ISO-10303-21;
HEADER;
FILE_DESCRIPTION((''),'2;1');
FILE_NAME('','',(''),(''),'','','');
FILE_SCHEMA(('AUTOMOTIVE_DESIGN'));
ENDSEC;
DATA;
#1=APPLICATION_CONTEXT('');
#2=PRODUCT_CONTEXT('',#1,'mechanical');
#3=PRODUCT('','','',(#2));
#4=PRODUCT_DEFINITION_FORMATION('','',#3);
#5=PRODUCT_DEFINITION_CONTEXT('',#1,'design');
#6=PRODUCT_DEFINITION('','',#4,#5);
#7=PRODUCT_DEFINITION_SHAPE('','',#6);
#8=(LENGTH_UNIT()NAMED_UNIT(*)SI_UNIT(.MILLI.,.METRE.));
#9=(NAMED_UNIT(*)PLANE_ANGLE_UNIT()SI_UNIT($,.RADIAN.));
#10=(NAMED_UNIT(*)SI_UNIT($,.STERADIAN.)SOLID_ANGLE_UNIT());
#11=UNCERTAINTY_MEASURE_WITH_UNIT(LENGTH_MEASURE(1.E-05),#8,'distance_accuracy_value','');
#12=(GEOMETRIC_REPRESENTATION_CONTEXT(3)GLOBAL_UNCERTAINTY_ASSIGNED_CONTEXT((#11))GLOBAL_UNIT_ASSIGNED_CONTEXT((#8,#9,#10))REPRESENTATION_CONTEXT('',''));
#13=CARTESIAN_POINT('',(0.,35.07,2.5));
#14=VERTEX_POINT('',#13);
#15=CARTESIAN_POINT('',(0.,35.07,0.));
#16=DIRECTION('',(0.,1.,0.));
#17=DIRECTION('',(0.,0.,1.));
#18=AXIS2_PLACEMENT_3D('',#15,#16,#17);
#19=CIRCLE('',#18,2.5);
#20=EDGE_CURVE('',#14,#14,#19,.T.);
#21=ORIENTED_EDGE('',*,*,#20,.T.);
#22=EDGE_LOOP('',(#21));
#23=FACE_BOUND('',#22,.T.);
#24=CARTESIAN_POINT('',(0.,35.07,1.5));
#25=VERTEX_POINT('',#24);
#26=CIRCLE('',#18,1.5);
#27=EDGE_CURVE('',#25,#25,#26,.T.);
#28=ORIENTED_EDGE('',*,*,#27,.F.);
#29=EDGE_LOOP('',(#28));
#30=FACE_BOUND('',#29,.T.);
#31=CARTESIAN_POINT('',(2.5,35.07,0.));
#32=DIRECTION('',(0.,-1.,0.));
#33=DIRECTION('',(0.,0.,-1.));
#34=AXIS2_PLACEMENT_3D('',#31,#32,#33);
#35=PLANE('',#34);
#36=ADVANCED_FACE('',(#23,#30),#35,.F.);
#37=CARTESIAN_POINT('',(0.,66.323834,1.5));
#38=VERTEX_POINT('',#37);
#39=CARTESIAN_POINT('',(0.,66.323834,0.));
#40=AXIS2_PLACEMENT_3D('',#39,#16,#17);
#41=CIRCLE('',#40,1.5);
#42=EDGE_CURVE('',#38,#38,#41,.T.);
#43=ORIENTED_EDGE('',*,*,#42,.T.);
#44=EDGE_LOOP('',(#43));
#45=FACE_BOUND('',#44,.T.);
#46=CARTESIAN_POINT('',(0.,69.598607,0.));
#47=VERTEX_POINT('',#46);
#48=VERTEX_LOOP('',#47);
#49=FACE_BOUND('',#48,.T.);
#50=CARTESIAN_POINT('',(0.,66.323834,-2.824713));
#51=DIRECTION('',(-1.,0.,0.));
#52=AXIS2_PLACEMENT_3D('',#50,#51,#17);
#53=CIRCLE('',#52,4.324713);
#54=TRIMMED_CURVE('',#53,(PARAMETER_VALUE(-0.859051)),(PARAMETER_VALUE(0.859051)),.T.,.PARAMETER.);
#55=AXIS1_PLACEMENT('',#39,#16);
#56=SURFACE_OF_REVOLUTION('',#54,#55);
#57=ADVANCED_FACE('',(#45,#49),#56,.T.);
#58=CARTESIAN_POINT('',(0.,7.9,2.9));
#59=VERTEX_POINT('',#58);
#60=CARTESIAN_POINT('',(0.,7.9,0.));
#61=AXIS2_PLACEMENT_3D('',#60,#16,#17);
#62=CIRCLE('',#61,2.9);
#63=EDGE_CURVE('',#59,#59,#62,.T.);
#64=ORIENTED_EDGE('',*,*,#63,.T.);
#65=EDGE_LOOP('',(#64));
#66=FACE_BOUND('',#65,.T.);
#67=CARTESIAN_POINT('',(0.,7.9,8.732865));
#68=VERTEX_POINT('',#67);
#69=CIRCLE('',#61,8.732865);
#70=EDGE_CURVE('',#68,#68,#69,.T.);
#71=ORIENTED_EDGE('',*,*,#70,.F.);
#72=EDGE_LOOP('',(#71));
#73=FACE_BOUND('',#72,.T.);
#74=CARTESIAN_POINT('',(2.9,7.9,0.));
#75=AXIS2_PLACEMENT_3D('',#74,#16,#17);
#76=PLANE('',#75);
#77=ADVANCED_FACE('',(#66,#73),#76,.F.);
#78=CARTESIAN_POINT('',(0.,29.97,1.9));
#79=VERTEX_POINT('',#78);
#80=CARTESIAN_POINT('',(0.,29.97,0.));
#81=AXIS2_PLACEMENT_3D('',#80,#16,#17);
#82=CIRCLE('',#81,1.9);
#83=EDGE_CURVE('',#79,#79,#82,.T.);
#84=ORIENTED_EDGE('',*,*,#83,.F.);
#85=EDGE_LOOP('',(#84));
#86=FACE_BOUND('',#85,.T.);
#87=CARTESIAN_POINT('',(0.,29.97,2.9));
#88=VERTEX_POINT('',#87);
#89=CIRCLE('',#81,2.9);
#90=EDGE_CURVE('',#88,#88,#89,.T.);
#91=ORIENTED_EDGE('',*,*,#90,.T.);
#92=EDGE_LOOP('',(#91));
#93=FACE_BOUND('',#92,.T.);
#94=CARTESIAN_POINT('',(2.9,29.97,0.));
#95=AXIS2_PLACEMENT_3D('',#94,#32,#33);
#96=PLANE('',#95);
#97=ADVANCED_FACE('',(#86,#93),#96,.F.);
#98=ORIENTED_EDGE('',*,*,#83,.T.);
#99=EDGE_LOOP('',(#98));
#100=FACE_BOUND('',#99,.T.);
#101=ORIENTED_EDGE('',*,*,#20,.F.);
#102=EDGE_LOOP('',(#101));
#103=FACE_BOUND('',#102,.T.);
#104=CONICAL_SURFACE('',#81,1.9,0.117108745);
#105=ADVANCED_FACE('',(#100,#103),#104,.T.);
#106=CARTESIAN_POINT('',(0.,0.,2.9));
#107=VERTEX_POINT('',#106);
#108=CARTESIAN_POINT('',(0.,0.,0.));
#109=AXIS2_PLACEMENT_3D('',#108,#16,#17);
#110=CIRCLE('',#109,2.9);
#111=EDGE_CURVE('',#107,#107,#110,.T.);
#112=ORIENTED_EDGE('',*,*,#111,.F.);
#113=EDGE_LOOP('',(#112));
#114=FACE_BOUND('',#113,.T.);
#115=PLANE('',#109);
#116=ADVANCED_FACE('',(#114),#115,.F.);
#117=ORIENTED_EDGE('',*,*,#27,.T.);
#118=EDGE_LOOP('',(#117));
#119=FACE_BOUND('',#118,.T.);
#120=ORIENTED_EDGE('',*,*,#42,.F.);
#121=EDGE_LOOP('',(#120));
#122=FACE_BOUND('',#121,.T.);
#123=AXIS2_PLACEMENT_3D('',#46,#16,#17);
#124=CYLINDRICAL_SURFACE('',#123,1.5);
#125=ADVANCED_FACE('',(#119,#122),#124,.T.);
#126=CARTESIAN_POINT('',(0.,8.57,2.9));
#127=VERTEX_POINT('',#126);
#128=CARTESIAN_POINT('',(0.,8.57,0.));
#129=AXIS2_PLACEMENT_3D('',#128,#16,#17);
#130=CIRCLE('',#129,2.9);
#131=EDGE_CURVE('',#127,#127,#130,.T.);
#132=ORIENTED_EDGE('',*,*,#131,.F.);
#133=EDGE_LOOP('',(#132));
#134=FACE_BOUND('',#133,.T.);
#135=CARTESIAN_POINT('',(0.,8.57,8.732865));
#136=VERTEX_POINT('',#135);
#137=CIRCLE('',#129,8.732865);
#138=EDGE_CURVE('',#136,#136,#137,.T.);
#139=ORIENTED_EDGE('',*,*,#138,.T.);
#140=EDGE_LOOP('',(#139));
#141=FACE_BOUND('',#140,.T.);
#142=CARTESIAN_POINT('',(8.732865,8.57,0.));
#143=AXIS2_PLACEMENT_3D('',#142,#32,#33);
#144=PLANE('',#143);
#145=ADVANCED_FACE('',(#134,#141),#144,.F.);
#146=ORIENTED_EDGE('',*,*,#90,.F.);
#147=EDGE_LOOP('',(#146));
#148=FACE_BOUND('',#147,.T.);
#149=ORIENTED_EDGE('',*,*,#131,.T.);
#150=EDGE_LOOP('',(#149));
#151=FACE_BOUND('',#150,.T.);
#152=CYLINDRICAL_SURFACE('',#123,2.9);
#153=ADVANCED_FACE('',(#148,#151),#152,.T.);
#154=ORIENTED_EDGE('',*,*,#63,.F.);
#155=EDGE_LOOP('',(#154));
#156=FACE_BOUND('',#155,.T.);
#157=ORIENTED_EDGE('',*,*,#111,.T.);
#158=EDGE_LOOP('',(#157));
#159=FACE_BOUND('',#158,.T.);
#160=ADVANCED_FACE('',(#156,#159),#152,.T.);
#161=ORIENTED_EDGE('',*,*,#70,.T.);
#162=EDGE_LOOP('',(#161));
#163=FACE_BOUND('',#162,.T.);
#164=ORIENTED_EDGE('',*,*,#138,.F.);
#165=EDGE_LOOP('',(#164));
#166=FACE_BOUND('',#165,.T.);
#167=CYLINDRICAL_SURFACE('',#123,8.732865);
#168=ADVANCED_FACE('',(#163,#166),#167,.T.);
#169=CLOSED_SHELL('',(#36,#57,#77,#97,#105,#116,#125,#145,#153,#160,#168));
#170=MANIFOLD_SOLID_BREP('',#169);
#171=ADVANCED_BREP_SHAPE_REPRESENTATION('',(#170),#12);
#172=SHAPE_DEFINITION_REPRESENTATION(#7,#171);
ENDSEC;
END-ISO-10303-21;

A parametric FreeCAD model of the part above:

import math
import FreeCAD as App
import Part
import Sketcher

doc = App.newDocument("Part")
body = doc.addObject("PartDesign::Body", "Body")

# Sketch on XY plane
sketch1 = doc.addObject("Sketcher::SketchObject", "Sketch")
body.addObject(sketch1)
sketch1.AttachmentSupport = (doc.XY_Plane, [""])
sketch1.MapMode = "FlatFace"
sketch1.addGeometry([
    Part.LineSegment(App.Vector(0, 0, 0), App.Vector(2.9, 0, 0)),  # 0
    Part.LineSegment(App.Vector(2.9, 0, 0), App.Vector(2.9, 7.9, 0)),  # 1
    Part.LineSegment(App.Vector(2.9, 7.9, 0), App.Vector(8.732865, 7.9, 0)),  # 2
    Part.LineSegment(App.Vector(8.732865, 7.9, 0), App.Vector(8.732865, 8.57, 0)),  # 3
    Part.LineSegment(App.Vector(8.732865, 8.57, 0), App.Vector(2.9, 8.57, 0)),  # 4
    Part.LineSegment(App.Vector(2.9, 8.57, 0), App.Vector(2.9, 29.97, 0)),  # 5
    Part.LineSegment(App.Vector(2.9, 29.97, 0), App.Vector(1.9, 29.97, 0)),  # 6
    Part.LineSegment(App.Vector(1.9, 29.97, 0), App.Vector(2.5, 35.07, 0)),  # 7
    Part.LineSegment(App.Vector(2.5, 35.07, 0), App.Vector(1.5, 35.07, 0)),  # 8
    Part.LineSegment(App.Vector(1.5, 35.07, 0), App.Vector(1.5, 66.323834, 0)),  # 9
    Part.ArcOfCircle(Part.Circle(App.Vector(-2.824713, 66.323834, 0), App.Vector(0, 0, 1), 4.324713), math.radians(0), math.radians(49.220014)),  # 10
    Part.LineSegment(App.Vector(0, 69.598607, 0), App.Vector(0, 0, 0)),  # 11
], False)
sketch1.addConstraint([
    Sketcher.Constraint("Coincident", 0, 2, 1, 1),
    Sketcher.Constraint("Coincident", 1, 2, 2, 1),
    Sketcher.Constraint("Coincident", 2, 2, 3, 1),
    Sketcher.Constraint("Coincident", 3, 2, 4, 1),
    Sketcher.Constraint("Coincident", 4, 2, 5, 1),
    Sketcher.Constraint("Coincident", 5, 2, 6, 1),
    Sketcher.Constraint("Coincident", 6, 2, 7, 1),
    Sketcher.Constraint("Coincident", 7, 2, 8, 1),
    Sketcher.Constraint("Coincident", 8, 2, 9, 1),
    Sketcher.Constraint("Tangent", 9, 2, 10, 1),
    Sketcher.Constraint("Coincident", 10, 2, 11, 1),
    Sketcher.Constraint("Coincident", 11, 2, 0, 1),
    Sketcher.Constraint("Horizontal", 0),
    Sketcher.Constraint("Vertical", 1),
    Sketcher.Constraint("Horizontal", 2),
    Sketcher.Constraint("Vertical", 3),
    Sketcher.Constraint("Horizontal", 4),
    Sketcher.Constraint("Vertical", 5),
    Sketcher.Constraint("Horizontal", 6),
    Sketcher.Constraint("Horizontal", 8),
    Sketcher.Constraint("Vertical", 9),
    Sketcher.Constraint("Vertical", 11),
    Sketcher.Constraint("Coincident", 11, 2, -1, 1),
    Sketcher.Constraint("Vertical", 1, 2, 4, 2),
    Sketcher.Constraint("Equal", 6, 8),
    Sketcher.Constraint("DistanceX", 6, 2, 6, 1, 1.0),
    Sketcher.Constraint("DistanceX", 0, 1, 0, 2, 2.9),
    Sketcher.Constraint("DistanceY", 1, 1, 1, 2, 7.9),
    Sketcher.Constraint("DistanceY", 5, 1, 5, 2, 21.4),
    Sketcher.Constraint("DistanceY", 3, 1, 3, 2, 0.67),
    Sketcher.Constraint("DistanceX", -1, 1, 7, 2, 2.5),
    Sketcher.Constraint("DistanceY", 5, 2, 7, 2, 5.1),
    Sketcher.Constraint("Radius", 10, 4.324713),
    Sketcher.Constraint("DistanceX", 2, 1, 2, 2, 5.832865),
    Sketcher.Constraint("DistanceY", 9, 1, 9, 2, 31.253834),
])
revolution = doc.addObject("PartDesign::Revolution", "Revolution")
body.addObject(revolution)
revolution.Profile = sketch1
revolution.ReferenceAxis = (sketch1, ["V_Axis"])
revolution.Angle = 360

doc.recompute()
